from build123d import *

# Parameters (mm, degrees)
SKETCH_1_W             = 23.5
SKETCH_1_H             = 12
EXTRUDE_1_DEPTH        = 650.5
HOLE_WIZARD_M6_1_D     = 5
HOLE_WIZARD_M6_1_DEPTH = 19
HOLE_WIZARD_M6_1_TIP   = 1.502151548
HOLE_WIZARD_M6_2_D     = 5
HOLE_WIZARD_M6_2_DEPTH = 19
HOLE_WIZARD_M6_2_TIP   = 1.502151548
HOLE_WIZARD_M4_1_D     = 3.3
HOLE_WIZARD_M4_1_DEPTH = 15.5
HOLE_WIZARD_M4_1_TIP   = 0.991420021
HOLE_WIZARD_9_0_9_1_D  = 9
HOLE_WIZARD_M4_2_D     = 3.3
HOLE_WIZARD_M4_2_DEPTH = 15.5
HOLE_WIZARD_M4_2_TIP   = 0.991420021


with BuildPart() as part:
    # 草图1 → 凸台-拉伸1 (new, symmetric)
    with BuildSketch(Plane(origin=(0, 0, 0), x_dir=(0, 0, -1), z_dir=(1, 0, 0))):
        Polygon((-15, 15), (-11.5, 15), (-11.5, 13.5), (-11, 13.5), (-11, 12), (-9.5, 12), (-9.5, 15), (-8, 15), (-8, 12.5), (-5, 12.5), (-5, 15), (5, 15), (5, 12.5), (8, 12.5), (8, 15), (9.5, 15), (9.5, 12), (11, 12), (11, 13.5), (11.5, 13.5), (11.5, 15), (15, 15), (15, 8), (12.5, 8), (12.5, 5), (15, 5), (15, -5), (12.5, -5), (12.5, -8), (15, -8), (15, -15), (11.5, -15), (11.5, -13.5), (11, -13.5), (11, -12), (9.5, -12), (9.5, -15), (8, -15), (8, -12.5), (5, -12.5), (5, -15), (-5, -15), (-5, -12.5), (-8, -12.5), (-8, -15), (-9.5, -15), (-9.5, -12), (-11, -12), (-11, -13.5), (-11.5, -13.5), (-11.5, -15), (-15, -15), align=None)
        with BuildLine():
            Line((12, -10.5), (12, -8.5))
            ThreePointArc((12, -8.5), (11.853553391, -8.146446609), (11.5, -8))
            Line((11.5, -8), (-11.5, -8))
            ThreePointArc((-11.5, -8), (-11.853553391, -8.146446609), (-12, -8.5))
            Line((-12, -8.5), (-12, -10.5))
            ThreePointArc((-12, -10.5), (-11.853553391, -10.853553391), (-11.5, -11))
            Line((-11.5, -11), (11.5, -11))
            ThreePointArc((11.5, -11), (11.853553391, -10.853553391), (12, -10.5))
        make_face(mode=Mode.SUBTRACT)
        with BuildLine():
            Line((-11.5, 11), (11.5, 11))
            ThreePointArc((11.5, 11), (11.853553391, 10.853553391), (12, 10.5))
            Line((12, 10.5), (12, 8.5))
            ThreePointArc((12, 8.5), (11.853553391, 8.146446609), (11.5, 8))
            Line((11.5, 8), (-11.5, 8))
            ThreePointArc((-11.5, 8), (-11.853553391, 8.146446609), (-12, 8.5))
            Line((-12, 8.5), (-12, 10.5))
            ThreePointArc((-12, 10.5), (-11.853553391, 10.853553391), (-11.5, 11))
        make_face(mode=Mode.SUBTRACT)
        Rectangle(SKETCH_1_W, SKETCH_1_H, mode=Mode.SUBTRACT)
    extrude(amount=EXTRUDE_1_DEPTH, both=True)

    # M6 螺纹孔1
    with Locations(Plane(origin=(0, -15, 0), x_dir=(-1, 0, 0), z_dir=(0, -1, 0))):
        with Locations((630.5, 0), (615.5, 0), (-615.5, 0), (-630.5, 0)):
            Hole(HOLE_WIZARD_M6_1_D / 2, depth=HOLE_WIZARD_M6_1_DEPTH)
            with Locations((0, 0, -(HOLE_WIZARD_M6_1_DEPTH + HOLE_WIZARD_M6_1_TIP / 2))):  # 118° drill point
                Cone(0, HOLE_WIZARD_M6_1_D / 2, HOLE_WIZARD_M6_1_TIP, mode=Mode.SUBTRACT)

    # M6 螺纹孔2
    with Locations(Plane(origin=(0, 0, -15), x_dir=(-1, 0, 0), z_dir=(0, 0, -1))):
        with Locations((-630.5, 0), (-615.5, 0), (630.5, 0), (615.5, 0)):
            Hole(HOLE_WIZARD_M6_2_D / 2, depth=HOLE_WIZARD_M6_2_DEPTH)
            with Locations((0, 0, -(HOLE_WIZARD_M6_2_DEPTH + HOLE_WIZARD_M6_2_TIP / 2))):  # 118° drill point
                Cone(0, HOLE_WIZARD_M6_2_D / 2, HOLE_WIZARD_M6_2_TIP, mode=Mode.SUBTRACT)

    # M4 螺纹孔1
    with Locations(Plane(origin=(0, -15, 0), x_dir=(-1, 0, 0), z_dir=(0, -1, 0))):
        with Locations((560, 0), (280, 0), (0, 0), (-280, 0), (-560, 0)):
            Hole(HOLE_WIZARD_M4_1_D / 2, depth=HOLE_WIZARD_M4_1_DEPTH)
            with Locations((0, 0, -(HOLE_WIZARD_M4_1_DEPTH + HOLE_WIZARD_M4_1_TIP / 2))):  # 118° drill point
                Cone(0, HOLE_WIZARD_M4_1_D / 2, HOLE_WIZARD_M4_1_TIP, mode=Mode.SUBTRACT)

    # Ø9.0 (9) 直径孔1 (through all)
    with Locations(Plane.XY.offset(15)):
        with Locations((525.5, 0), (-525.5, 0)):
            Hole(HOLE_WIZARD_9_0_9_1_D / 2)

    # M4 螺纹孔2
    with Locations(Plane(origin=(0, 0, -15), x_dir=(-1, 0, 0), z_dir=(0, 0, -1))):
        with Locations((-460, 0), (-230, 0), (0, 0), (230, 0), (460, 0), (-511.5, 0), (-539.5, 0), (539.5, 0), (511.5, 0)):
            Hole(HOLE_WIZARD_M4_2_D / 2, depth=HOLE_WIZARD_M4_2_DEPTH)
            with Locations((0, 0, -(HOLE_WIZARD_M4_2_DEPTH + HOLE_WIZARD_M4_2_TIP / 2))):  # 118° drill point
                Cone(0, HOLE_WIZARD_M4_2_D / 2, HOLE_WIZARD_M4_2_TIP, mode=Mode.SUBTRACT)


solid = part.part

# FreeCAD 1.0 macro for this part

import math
import FreeCAD as App
import Part
import Sketcher
from FreeCAD import Vector


def add_polygon(sketch, points):
    """Adds a closed chain of lines whose ends are joined by coincident constraints."""
    first, n = sketch.GeometryCount, len(points)
    for a, b in zip(points, points[1:] + points[:1]):
        sketch.addGeometry(Part.LineSegment(App.Vector(*a, 0), App.Vector(*b, 0)), False)
    for i in range(n):
        sketch.addConstraint(Sketcher.Constraint("Coincident", first + i, 2, first + (i + 1) % n, 1))

doc = App.newDocument("Part")
body = doc.addObject("PartDesign::Body", "Body")

# Sketch on YZ plane
sketch1 = body.newObject("Sketcher::SketchObject", "Sketch")
sketch1.AttachmentSupport = (doc.getObject("YZ_Plane"), [""])
sketch1.MapMode = "FlatFace"
add_polygon(sketch1, [(15, 11.5), (15, 15), (-15, 15), (-15, 11.5), (-13.5, 11.5), (-13.5, 11), (-12, 11), (-12, 9.5), (-15, 9.5), (-15, 8), (-12.5, 8), (-12.5, 5), (-15, 5), (-15, -5), (-12.5, -5), (-12.5, -8), (-15, -8), (-15, -9.5), (-12, -9.5), (-12, -11), (-13.5, -11), (-13.5, -11.5), (-15, -11.5), (-15, -15), (-8, -15), (-8, -12.5), (-5, -12.5), (-5, -15), (5, -15), (5, -12.5), (8, -12.5), (8, -15), (15, -15), (15, -11.5), (13.5, -11.5), (13.5, -11), (12, -11), (12, -9.5), (15, -9.5), (15, -8), (12.5, -8), (12.5, -5), (15, -5), (15, 5), (12.5, 5), (12.5, 8), (15, 8), (15, 9.5), (12, 9.5), (12, 11), (13.5, 11), (13.5, 11.5)])  # lines 0-51
sketch1.addGeometry(Part.ArcOfCircle(Part.Circle(Vector(-10.5, -11.5, 0), Vector(0, 0, 1), 0.5), math.radians(180), math.radians(270)), False)  # 52
sketch1.addGeometry(Part.LineSegment(Vector(-11, -11.5, 0), Vector(-11, 11.5, 0)), False)  # 53
sketch1.addGeometry(Part.ArcOfCircle(Part.Circle(Vector(-10.5, 11.5, 0), Vector(0, 0, 1), 0.5), math.radians(90), math.radians(180)), False)  # 54
sketch1.addGeometry(Part.LineSegment(Vector(-10.5, 12, 0), Vector(-8.5, 12, 0)), False)  # 55
sketch1.addGeometry(Part.ArcOfCircle(Part.Circle(Vector(-8.5, 11.5, 0), Vector(0, 0, 1), 0.5), math.radians(0), math.radians(90)), False)  # 56
sketch1.addGeometry(Part.LineSegment(Vector(-8, 11.5, 0), Vector(-8, -11.5, 0)), False)  # 57
sketch1.addGeometry(Part.ArcOfCircle(Part.Circle(Vector(-8.5, -11.5, 0), Vector(0, 0, 1), 0.5), math.radians(-90), math.radians(0)), False)  # 58
sketch1.addGeometry(Part.LineSegment(Vector(-8.5, -12, 0), Vector(-10.5, -12, 0)), False)  # 59
add_polygon(sketch1, [(-6, 11.75), (6, 11.75), (6, -11.75), (-6, -11.75)])  # lines 60-63
sketch1.addGeometry(Part.LineSegment(Vector(11, 11.5, 0), Vector(11, -11.5, 0)), False)  # 64
sketch1.addGeometry(Part.ArcOfCircle(Part.Circle(Vector(10.5, -11.5, 0), Vector(0, 0, 1), 0.5), math.radians(-90), math.radians(0)), False)  # 65
sketch1.addGeometry(Part.LineSegment(Vector(10.5, -12, 0), Vector(8.5, -12, 0)), False)  # 66
sketch1.addGeometry(Part.ArcOfCircle(Part.Circle(Vector(8.5, -11.5, 0), Vector(0, 0, 1), 0.5), math.radians(180), math.radians(270)), False)  # 67
sketch1.addGeometry(Part.LineSegment(Vector(8, -11.5, 0), Vector(8, 11.5, 0)), False)  # 68
sketch1.addGeometry(Part.ArcOfCircle(Part.Circle(Vector(8.5, 11.5, 0), Vector(0, 0, 1), 0.5), math.radians(90), math.radians(180)), False)  # 69
sketch1.addGeometry(Part.LineSegment(Vector(8.5, 12, 0), Vector(10.5, 12, 0)), False)  # 70
sketch1.addGeometry(Part.ArcOfCircle(Part.Circle(Vector(10.5, 11.5, 0), Vector(0, 0, 1), 0.5), math.radians(0), math.radians(90)), False)  # 71
sketch1.addConstraint(Sketcher.Constraint("Tangent", 52, 1, 53, 1))
sketch1.addConstraint(Sketcher.Constraint("Tangent", 53, 2, 54, 2))
sketch1.addConstraint(Sketcher.Constraint("Tangent", 54, 1, 55, 1))
sketch1.addConstraint(Sketcher.Constraint("Tangent", 55, 2, 56, 2))
sketch1.addConstraint(Sketcher.Constraint("Tangent", 56, 1, 57, 1))
sketch1.addConstraint(Sketcher.Constraint("Tangent", 57, 2, 58, 2))
sketch1.addConstraint(Sketcher.Constraint("Tangent", 58, 1, 59, 1))
sketch1.addConstraint(Sketcher.Constraint("Tangent", 59, 2, 52, 2))
sketch1.addConstraint(Sketcher.Constraint("Tangent", 64, 2, 65, 2))
sketch1.addConstraint(Sketcher.Constraint("Tangent", 65, 1, 66, 1))
sketch1.addConstraint(Sketcher.Constraint("Tangent", 66, 2, 67, 2))
sketch1.addConstraint(Sketcher.Constraint("Tangent", 67, 1, 68, 1))
sketch1.addConstraint(Sketcher.Constraint("Tangent", 68, 2, 69, 2))
sketch1.addConstraint(Sketcher.Constraint("Tangent", 69, 1, 70, 1))
sketch1.addConstraint(Sketcher.Constraint("Tangent", 70, 2, 71, 2))
sketch1.addConstraint(Sketcher.Constraint("Tangent", 71, 1, 64, 1))
sketch1.addConstraint(Sketcher.Constraint("Vertical", 0))
sketch1.addConstraint(Sketcher.Constraint("Horizontal", 1))
sketch1.addConstraint(Sketcher.Constraint("Vertical", 2))
sketch1.addConstraint(Sketcher.Constraint("Horizontal", 3))
sketch1.addConstraint(Sketcher.Constraint("Vertical", 4))
sketch1.addConstraint(Sketcher.Constraint("Horizontal", 5))
sketch1.addConstraint(Sketcher.Constraint("Vertical", 6))
sketch1.addConstraint(Sketcher.Constraint("Horizontal", 7))
sketch1.addConstraint(Sketcher.Constraint("Vertical", 8))
sketch1.addConstraint(Sketcher.Constraint("Horizontal", 9))
sketch1.addConstraint(Sketcher.Constraint("Vertical", 10))
sketch1.addConstraint(Sketcher.Constraint("Horizontal", 11))
sketch1.addConstraint(Sketcher.Constraint("Vertical", 12))
sketch1.addConstraint(Sketcher.Constraint("Horizontal", 13))
sketch1.addConstraint(Sketcher.Constraint("Vertical", 14))
sketch1.addConstraint(Sketcher.Constraint("Horizontal", 15))
sketch1.addConstraint(Sketcher.Constraint("Vertical", 16))
sketch1.addConstraint(Sketcher.Constraint("Horizontal", 17))
sketch1.addConstraint(Sketcher.Constraint("Vertical", 18))
sketch1.addConstraint(Sketcher.Constraint("Horizontal", 19))
sketch1.addConstraint(Sketcher.Constraint("Vertical", 20))
sketch1.addConstraint(Sketcher.Constraint("Horizontal", 21))
sketch1.addConstraint(Sketcher.Constraint("Vertical", 22))
sketch1.addConstraint(Sketcher.Constraint("Horizontal", 23))
sketch1.addConstraint(Sketcher.Constraint("Vertical", 24))
sketch1.addConstraint(Sketcher.Constraint("Horizontal", 25))
sketch1.addConstraint(Sketcher.Constraint("Vertical", 26))
sketch1.addConstraint(Sketcher.Constraint("Horizontal", 27))
sketch1.addConstraint(Sketcher.Constraint("Vertical", 28))
sketch1.addConstraint(Sketcher.Constraint("Horizontal", 29))
sketch1.addConstraint(Sketcher.Constraint("Vertical", 30))
sketch1.addConstraint(Sketcher.Constraint("Horizontal", 31))
sketch1.addConstraint(Sketcher.Constraint("Vertical", 32))
sketch1.addConstraint(Sketcher.Constraint("Horizontal", 33))
sketch1.addConstraint(Sketcher.Constraint("Vertical", 34))
sketch1.addConstraint(Sketcher.Constraint("Horizontal", 35))
sketch1.addConstraint(Sketcher.Constraint("Vertical", 36))
sketch1.addConstraint(Sketcher.Constraint("Horizontal", 37))
sketch1.addConstraint(Sketcher.Constraint("Vertical", 38))
sketch1.addConstraint(Sketcher.Constraint("Horizontal", 39))
sketch1.addConstraint(Sketcher.Constraint("Vertical", 40))
sketch1.addConstraint(Sketcher.Constraint("Horizontal", 41))
sketch1.addConstraint(Sketcher.Constraint("Vertical", 42))
sketch1.addConstraint(Sketcher.Constraint("Horizontal", 43))
sketch1.addConstraint(Sketcher.Constraint("Vertical", 44))
sketch1.addConstraint(Sketcher.Constraint("Horizontal", 45))
sketch1.addConstraint(Sketcher.Constraint("Vertical", 46))
sketch1.addConstraint(Sketcher.Constraint("Horizontal", 47))
sketch1.addConstraint(Sketcher.Constraint("Vertical", 48))
sketch1.addConstraint(Sketcher.Constraint("Horizontal", 49))
sketch1.addConstraint(Sketcher.Constraint("Vertical", 50))
sketch1.addConstraint(Sketcher.Constraint("Horizontal", 51))
sketch1.addConstraint(Sketcher.Constraint("Vertical", 53))
sketch1.addConstraint(Sketcher.Constraint("Horizontal", 55))
sketch1.addConstraint(Sketcher.Constraint("Vertical", 57))
sketch1.addConstraint(Sketcher.Constraint("Horizontal", 59))
sketch1.addConstraint(Sketcher.Constraint("Horizontal", 60))
sketch1.addConstraint(Sketcher.Constraint("Vertical", 61))
sketch1.addConstraint(Sketcher.Constraint("Horizontal", 62))
sketch1.addConstraint(Sketcher.Constraint("Vertical", 63))
sketch1.addConstraint(Sketcher.Constraint("Vertical", 64))
sketch1.addConstraint(Sketcher.Constraint("Horizontal", 66))
sketch1.addConstraint(Sketcher.Constraint("Vertical", 68))
sketch1.addConstraint(Sketcher.Constraint("Horizontal", 70))
sketch1.addConstraint(Sketcher.Constraint("Equal", 52, 54))
sketch1.addConstraint(Sketcher.Constraint("Equal", 54, 56))
sketch1.addConstraint(Sketcher.Constraint("Equal", 56, 58))
sketch1.addConstraint(Sketcher.Constraint("Equal", 58, 65))
sketch1.addConstraint(Sketcher.Constraint("Equal", 65, 67))
sketch1.addConstraint(Sketcher.Constraint("Equal", 67, 69))
sketch1.addConstraint(Sketcher.Constraint("Equal", 69, 71))
sketch1.addConstraint(Sketcher.Constraint("Symmetric", 54, 3, 65, 3, -1, 1))
sketch1.addConstraint(Sketcher.Constraint("Symmetric", 58, 3, 69, 3, -1, 1))
sketch1.addConstraint(Sketcher.Constraint("Symmetric", 0, 2, 22, 2, -1, 1))
sketch1.addConstraint(Sketcher.Constraint("Symmetric", 1, 2, 31, 2, -1, 1))
sketch1.addConstraint(Sketcher.Constraint("Symmetric", 3, 2, 33, 2, -1, 1))
sketch1.addConstraint(Sketcher.Constraint("Symmetric", 5, 2, 35, 2, -1, 1))
sketch1.addConstraint(Sketcher.Constraint("Symmetric", 7, 2, 37, 2, -1, 1))
sketch1.addConstraint(Sketcher.Constraint("Symmetric", 9, 2, 39, 2, -1, 1))
sketch1.addConstraint(Sketcher.Constraint("Symmetric", 11, 2, 41, 2, -1, 1))
sketch1.addConstraint(Sketcher.Constraint("Symmetric", 13, 2, 43, 2, -1, 1))
sketch1.addConstraint(Sketcher.Constraint("Symmetric", 15, 2, 45, 2, -1, 1))
sketch1.addConstraint(Sketcher.Constraint("Symmetric", 17, 2, 47, 2, -1, 1))
sketch1.addConstraint(Sketcher.Constraint("Symmetric", 19, 2, 49, 2, -1, 1))
sketch1.addConstraint(Sketcher.Constraint("Symmetric", 60, 2, 62, 2, -1, 1))
sketch1.addConstraint(Sketcher.Constraint("Symmetric", 25, 2, 28, 2, -2))
sketch1.addConstraint(Sketcher.Constraint("Symmetric", 21, 2, 32, 2, -2))
sketch1.addConstraint(Sketcher.Constraint("Symmetric", 19, 2, 34, 2, -2))
sketch1.addConstraint(Sketcher.Constraint("Symmetric", 17, 2, 36, 2, -2))
sketch1.addConstraint(Sketcher.Constraint("Symmetric", 15, 2, 38, 2, -2))
sketch1.addConstraint(Sketcher.Constraint("Symmetric", 13, 2, 40, 2, -2))
sketch1.addConstraint(Sketcher.Constraint("Horizontal", 58, 3, 65, 3))
sketch1.addConstraint(Sketcher.Constraint("Horizontal", 71, 3, 2, 2))
sketch1.addConstraint(Sketcher.Constraint("Horizontal", 23, 2, 26, 2))
sketch1.addConstraint(Sketcher.Constraint("Horizontal", 3, 2, 50, 2))
sketch1.addConstraint(Sketcher.Constraint("Vertical", 2, 2, 7, 2))
sketch1.addConstraint(Sketcher.Constraint("Vertical", 8, 2, 11, 2))
sketch1.addConstraint(Sketcher.Constraint("Vertical", 24, 2, 56, 1))
sketch1.addConstraint(Sketcher.Constraint("Vertical", 30, 2, 67, 1))
sketch1.addConstraint(Sketcher.Constraint("Equal", 3, 5))
sketch1.addConstraint(Sketcher.Constraint("Equal", 17, 25))
sketch1.addConstraint(Sketcher.Constraint("Equal", 51, 6))
sketch1.addConstraint(Sketcher.Constraint("Equal", 6, 8))
sketch1.addConstraint(Sketcher.Constraint("Equal", 47, 10))
sketch1.addConstraint(Sketcher.Constraint("Equal", 27, 12))
sketch1.addConstraint(Sketcher.Constraint("Equal", 45, 24))
sketch1.addConstraint(Sketcher.Constraint("Radius", 52, 0.5))
sketch1.addConstraint(Sketcher.Constraint("DistanceX", 1, 2, 1, 1, 30.0))
sketch1.addConstraint(Sketcher.Constraint("DistanceX", 7, 2, 7, 1, 3.0))
sketch1.addConstraint(Sketcher.Constraint("DistanceX", 23, 1, 23, 2, 7.0))
sketch1.addConstraint(Sketcher.Constraint("DistanceX", 55, 1, 55, 2, 2.0))
sketch1.addConstraint(Sketcher.Constraint("DistanceX", 60, 1, 60, 2, 12.0))
sketch1.addConstraint(Sketcher.Constraint("DistanceY", 53, 1, 53, 2, 23.0))
sketch1.addConstraint(Sketcher.Constraint("DistanceX", 9, 1, 9, 2, 2.5))
sketch1.addConstraint(Sketcher.Constraint("DistanceY", 0, 1, 0, 2, 3.5))
sketch1.addConstraint(Sketcher.Constraint("DistanceY", 61, 2, 61, 1, 23.5))
pad1 = body.newObject("PartDesign::Pad", "Pad")
pad1.Profile = sketch1
pad1.Length = 1301
pad1.Midplane = True

# Sketch on XZ plane
sketch2 = body.newObject("Sketcher::SketchObject", "Sketch001")
sketch2.AttachmentSupport = (doc.getObject("XZ_Plane"), [""])
sketch2.MapMode = "FlatFace"
sketch2.AttachmentOffset = App.Placement(Vector(0, 0, 15), App.Rotation())
sketch2.addGeometry(Part.Circle(Vector(-630.5, 0, 0), Vector(0, 0, 1), 2.5), False)
sketch2.addGeometry(Part.Circle(Vector(-615.5, 0, 0), Vector(0, 0, 1), 2.5), False)
sketch2.addGeometry(Part.Circle(Vector(615.5, 0, 0), Vector(0, 0, 1), 2.5), False)
sketch2.addGeometry(Part.Circle(Vector(630.5, 0, 0), Vector(0, 0, 1), 2.5), False)
sketch2.addConstraint(Sketcher.Constraint("Equal", 0, 1))
sketch2.addConstraint(Sketcher.Constraint("Equal", 1, 2))
sketch2.addConstraint(Sketcher.Constraint("Equal", 2, 3))
sketch2.addConstraint(Sketcher.Constraint("Symmetric", 1, 3, 2, 3, -1, 1))
sketch2.addConstraint(Sketcher.Constraint("Symmetric", 0, 3, 3, 3, -1, 1))
sketch2.addConstraint(Sketcher.Constraint("PointOnObject", 0, 3, -1))
sketch2.addConstraint(Sketcher.Constraint("PointOnObject", 1, 3, -1))
sketch2.addConstraint(Sketcher.Constraint("Diameter", 0, 5.0))
sketch2.addConstraint(Sketcher.Constraint("DistanceX", 0, 3, 1, 3, 15.0))
sketch2.addConstraint(Sketcher.Constraint("DistanceX", 1, 3, 2, 3, 1231.0))
doc.recompute()
hole = body.newObject("PartDesign::Hole", "Hole")
hole.Profile = sketch2
hole.ThreadType = "None"
hole.Diameter = 5
hole.DepthType = "Dimension"
hole.Depth = 19
hole.DrillPoint = "Angled"
hole.DrillPointAngle = 118

# Sketch on XY plane
sketch3 = body.newObject("Sketcher::SketchObject", "Sketch002")
sketch3.AttachmentSupport = (doc.getObject("XY_Plane"), [""])
sketch3.MapMode = "FlatFace"
sketch3.AttachmentOffset = App.Placement(Vector(0, 0, -15), App.Rotation())
sketch3.addGeometry(Part.Circle(Vector(630.5, 0, 0), Vector(0, 0, 1), 2.5), False)
sketch3.addGeometry(Part.Circle(Vector(615.5, 0, 0), Vector(0, 0, 1), 2.5), False)
sketch3.addGeometry(Part.Circle(Vector(-630.5, 0, 0), Vector(0, 0, 1), 2.5), False)
sketch3.addGeometry(Part.Circle(Vector(-615.5, 0, 0), Vector(0, 0, 1), 2.5), False)
sketch3.addConstraint(Sketcher.Constraint("Equal", 0, 1))
sketch3.addConstraint(Sketcher.Constraint("Equal", 1, 2))
sketch3.addConstraint(Sketcher.Constraint("Equal", 2, 3))
sketch3.addConstraint(Sketcher.Constraint("Symmetric", 0, 3, 2, 3, -1, 1))
sketch3.addConstraint(Sketcher.Constraint("Symmetric", 1, 3, 3, 3, -1, 1))
sketch3.addConstraint(Sketcher.Constraint("PointOnObject", 0, 3, -1))
sketch3.addConstraint(Sketcher.Constraint("PointOnObject", 1, 3, -1))
sketch3.addConstraint(Sketcher.Constraint("Diameter", 0, 5.0))
sketch3.addConstraint(Sketcher.Constraint("DistanceX", 1, 3, 0, 3, 15.0))
sketch3.addConstraint(Sketcher.Constraint("DistanceX", 2, 3, 1, 3, 1246.0))
doc.recompute()
hole2 = body.newObject("PartDesign::Hole", "Hole001")
hole2.Profile = sketch3
hole2.ThreadType = "None"
hole2.Diameter = 5
hole2.DepthType = "Dimension"
hole2.Depth = 19
hole2.DrillPoint = "Angled"
hole2.DrillPointAngle = 118
hole2.Reversed = True

# Sketch on XZ plane
sketch4 = body.newObject("Sketcher::SketchObject", "Sketch003")
sketch4.AttachmentSupport = (doc.getObject("XZ_Plane"), [""])
sketch4.MapMode = "FlatFace"
sketch4.AttachmentOffset = App.Placement(Vector(0, 0, 15), App.Rotation())
sketch4.addGeometry(Part.Circle(Vector(-560, 0, 0), Vector(0, 0, 1), 1.6), False)
sketch4.addGeometry(Part.Circle(Vector(-280, 0, 0), Vector(0, 0, 1), 1.6), False)
sketch4.addGeometry(Part.Circle(Vector(0, 0, 0), Vector(0, 0, 1), 1.6), False)
sketch4.addGeometry(Part.Circle(Vector(280, 0, 0), Vector(0, 0, 1), 1.6), False)
sketch4.addGeometry(Part.Circle(Vector(560, 0, 0), Vector(0, 0, 1), 1.6), False)
sketch4.addConstraint(Sketcher.Constraint("Coincident", 2, 3, -1, 1))
sketch4.addConstraint(Sketcher.Constraint("Equal", 0, 1))
sketch4.addConstraint(Sketcher.Constraint("Equal", 1, 2))
sketch4.addConstraint(Sketcher.Constraint("Equal", 2, 3))
sketch4.addConstraint(Sketcher.Constraint("Equal", 3, 4))
sketch4.addConstraint(Sketcher.Constraint("Symmetric", 1, 3, 3, 3, -1, 1))
sketch4.addConstraint(Sketcher.Constraint("Symmetric", 0, 3, 4, 3, -1, 1))
sketch4.addConstraint(Sketcher.Constraint("PointOnObject", 0, 3, -1))
sketch4.addConstraint(Sketcher.Constraint("PointOnObject", 1, 3, -1))
sketch4.addConstraint(Sketcher.Constraint("Diameter", 0, 3.3))
sketch4.addConstraint(Sketcher.Constraint("DistanceX", 0, 3, -1, 1, 560.0))
sketch4.addConstraint(Sketcher.Constraint("DistanceX", 1, 3, -1, 1, 280.0))
doc.recompute()
hole3 = body.newObject("PartDesign::Hole", "Hole002")
hole3.Profile = sketch4
hole3.ThreadType = "None"
hole3.Diameter = 3.3
hole3.DepthType = "Dimension"
hole3.Depth = 15.5
hole3.DrillPoint = "Angled"
hole3.DrillPointAngle = 118

# Sketch on XY plane
sketch5 = body.newObject("Sketcher::SketchObject", "Sketch004")
sketch5.AttachmentSupport = (doc.getObject("XY_Plane"), [""])
sketch5.MapMode = "FlatFace"
sketch5.AttachmentOffset = App.Placement(Vector(0, 0, 15), App.Rotation())
sketch5.addGeometry(Part.Circle(Vector(525.5, 0, 0), Vector(0, 0, 1), 4.5), False)
sketch5.addGeometry(Part.Circle(Vector(-525.5, 0, 0), Vector(0, 0, 1), 4.5), False)
sketch5.addConstraint(Sketcher.Constraint("Equal", 0, 1))
sketch5.addConstraint(Sketcher.Constraint("Symmetric", 0, 3, 1, 3, -1, 1))
sketch5.addConstraint(Sketcher.Constraint("PointOnObject", 0, 3, -1))
sketch5.addConstraint(Sketcher.Constraint("Diameter", 0, 9.0))
sketch5.addConstraint(Sketcher.Constraint("DistanceX", 1, 3, 0, 3, 1051.0))
doc.recompute()
hole4 = body.newObject("PartDesign::Hole", "Hole003")
hole4.Profile = sketch5
hole4.ThreadType = "None"
hole4.Diameter = 9
hole4.DepthType = "ThroughAll"

# Sketch on XY plane
sketch6 = body.newObject("Sketcher::SketchObject", "Sketch005")
sketch6.AttachmentSupport = (doc.getObject("XY_Plane"), [""])
sketch6.MapMode = "FlatFace"
sketch6.AttachmentOffset = App.Placement(Vector(0, 0, -15), App.Rotation())
sketch6.addGeometry(Part.Circle(Vector(460, 0, 0), Vector(0, 0, 1), 1.6), False)
sketch6.addGeometry(Part.Circle(Vector(230, 0, 0), Vector(0, 0, 1), 1.6), False)
sketch6.addGeometry(Part.Circle(Vector(0, 0, 0), Vector(0, 0, 1), 1.6), False)
sketch6.addGeometry(Part.Circle(Vector(-230, 0, 0), Vector(0, 0, 1), 1.6), False)
sketch6.addGeometry(Part.Circle(Vector(-460, 0, 0), Vector(0, 0, 1), 1.6), False)
sketch6.addGeometry(Part.Circle(Vector(511.5, 0, 0), Vector(0, 0, 1), 1.6), False)
sketch6.addGeometry(Part.Circle(Vector(539.5, 0, 0), Vector(0, 0, 1), 1.6), False)
sketch6.addGeometry(Part.Circle(Vector(-539.5, 0, 0), Vector(0, 0, 1), 1.6), False)
sketch6.addGeometry(Part.Circle(Vector(-511.5, 0, 0), Vector(0, 0, 1), 1.6), False)
sketch6.addConstraint(Sketcher.Constraint("Coincident", 2, 3, -1, 1))
sketch6.addConstraint(Sketcher.Constraint("Equal", 0, 1))
sketch6.addConstraint(Sketcher.Constraint("Equal", 1, 2))
sketch6.addConstraint(Sketcher.Constraint("Equal", 2, 3))
sketch6.addConstraint(Sketcher.Constraint("Equal", 3, 4))
sketch6.addConstraint(Sketcher.Constraint("Equal", 4, 5))
sketch6.addConstraint(Sketcher.Constraint("Equal", 5, 6))
sketch6.addConstraint(Sketcher.Constraint("Equal", 6, 7))
sketch6.addConstraint(Sketcher.Constraint("Equal", 7, 8))
sketch6.addConstraint(Sketcher.Constraint("Symmetric", 1, 3, 3, 3, -1, 1))
sketch6.addConstraint(Sketcher.Constraint("Symmetric", 0, 3, 4, 3, -1, 1))
sketch6.addConstraint(Sketcher.Constraint("Symmetric", 6, 3, 7, 3, -1, 1))
sketch6.addConstraint(Sketcher.Constraint("Symmetric", 5, 3, 8, 3, -1, 1))
sketch6.addConstraint(Sketcher.Constraint("PointOnObject", 0, 3, -1))
sketch6.addConstraint(Sketcher.Constraint("PointOnObject", 1, 3, -1))
sketch6.addConstraint(Sketcher.Constraint("PointOnObject", 5, 3, -1))
sketch6.addConstraint(Sketcher.Constraint("PointOnObject", 6, 3, -1))
sketch6.addConstraint(Sketcher.Constraint("Diameter", 0, 3.3))
sketch6.addConstraint(Sketcher.Constraint("DistanceX", -1, 1, 0, 3, 460.0))
sketch6.addConstraint(Sketcher.Constraint("DistanceX", -1, 1, 1, 3, 230.0))
sketch6.addConstraint(Sketcher.Constraint("DistanceX", 5, 3, 6, 3, 28.0))
sketch6.addConstraint(Sketcher.Constraint("DistanceX", -1, 1, 5, 3, 511.5))
doc.recompute()
hole5 = body.newObject("PartDesign::Hole", "Hole004")
hole5.Profile = sketch6
hole5.ThreadType = "None"
hole5.Diameter = 3.3
hole5.DepthType = "Dimension"
hole5.Depth = 15.5
hole5.DrillPoint = "Angled"
hole5.DrillPointAngle = 118
hole5.Reversed = True

doc.recompute()
